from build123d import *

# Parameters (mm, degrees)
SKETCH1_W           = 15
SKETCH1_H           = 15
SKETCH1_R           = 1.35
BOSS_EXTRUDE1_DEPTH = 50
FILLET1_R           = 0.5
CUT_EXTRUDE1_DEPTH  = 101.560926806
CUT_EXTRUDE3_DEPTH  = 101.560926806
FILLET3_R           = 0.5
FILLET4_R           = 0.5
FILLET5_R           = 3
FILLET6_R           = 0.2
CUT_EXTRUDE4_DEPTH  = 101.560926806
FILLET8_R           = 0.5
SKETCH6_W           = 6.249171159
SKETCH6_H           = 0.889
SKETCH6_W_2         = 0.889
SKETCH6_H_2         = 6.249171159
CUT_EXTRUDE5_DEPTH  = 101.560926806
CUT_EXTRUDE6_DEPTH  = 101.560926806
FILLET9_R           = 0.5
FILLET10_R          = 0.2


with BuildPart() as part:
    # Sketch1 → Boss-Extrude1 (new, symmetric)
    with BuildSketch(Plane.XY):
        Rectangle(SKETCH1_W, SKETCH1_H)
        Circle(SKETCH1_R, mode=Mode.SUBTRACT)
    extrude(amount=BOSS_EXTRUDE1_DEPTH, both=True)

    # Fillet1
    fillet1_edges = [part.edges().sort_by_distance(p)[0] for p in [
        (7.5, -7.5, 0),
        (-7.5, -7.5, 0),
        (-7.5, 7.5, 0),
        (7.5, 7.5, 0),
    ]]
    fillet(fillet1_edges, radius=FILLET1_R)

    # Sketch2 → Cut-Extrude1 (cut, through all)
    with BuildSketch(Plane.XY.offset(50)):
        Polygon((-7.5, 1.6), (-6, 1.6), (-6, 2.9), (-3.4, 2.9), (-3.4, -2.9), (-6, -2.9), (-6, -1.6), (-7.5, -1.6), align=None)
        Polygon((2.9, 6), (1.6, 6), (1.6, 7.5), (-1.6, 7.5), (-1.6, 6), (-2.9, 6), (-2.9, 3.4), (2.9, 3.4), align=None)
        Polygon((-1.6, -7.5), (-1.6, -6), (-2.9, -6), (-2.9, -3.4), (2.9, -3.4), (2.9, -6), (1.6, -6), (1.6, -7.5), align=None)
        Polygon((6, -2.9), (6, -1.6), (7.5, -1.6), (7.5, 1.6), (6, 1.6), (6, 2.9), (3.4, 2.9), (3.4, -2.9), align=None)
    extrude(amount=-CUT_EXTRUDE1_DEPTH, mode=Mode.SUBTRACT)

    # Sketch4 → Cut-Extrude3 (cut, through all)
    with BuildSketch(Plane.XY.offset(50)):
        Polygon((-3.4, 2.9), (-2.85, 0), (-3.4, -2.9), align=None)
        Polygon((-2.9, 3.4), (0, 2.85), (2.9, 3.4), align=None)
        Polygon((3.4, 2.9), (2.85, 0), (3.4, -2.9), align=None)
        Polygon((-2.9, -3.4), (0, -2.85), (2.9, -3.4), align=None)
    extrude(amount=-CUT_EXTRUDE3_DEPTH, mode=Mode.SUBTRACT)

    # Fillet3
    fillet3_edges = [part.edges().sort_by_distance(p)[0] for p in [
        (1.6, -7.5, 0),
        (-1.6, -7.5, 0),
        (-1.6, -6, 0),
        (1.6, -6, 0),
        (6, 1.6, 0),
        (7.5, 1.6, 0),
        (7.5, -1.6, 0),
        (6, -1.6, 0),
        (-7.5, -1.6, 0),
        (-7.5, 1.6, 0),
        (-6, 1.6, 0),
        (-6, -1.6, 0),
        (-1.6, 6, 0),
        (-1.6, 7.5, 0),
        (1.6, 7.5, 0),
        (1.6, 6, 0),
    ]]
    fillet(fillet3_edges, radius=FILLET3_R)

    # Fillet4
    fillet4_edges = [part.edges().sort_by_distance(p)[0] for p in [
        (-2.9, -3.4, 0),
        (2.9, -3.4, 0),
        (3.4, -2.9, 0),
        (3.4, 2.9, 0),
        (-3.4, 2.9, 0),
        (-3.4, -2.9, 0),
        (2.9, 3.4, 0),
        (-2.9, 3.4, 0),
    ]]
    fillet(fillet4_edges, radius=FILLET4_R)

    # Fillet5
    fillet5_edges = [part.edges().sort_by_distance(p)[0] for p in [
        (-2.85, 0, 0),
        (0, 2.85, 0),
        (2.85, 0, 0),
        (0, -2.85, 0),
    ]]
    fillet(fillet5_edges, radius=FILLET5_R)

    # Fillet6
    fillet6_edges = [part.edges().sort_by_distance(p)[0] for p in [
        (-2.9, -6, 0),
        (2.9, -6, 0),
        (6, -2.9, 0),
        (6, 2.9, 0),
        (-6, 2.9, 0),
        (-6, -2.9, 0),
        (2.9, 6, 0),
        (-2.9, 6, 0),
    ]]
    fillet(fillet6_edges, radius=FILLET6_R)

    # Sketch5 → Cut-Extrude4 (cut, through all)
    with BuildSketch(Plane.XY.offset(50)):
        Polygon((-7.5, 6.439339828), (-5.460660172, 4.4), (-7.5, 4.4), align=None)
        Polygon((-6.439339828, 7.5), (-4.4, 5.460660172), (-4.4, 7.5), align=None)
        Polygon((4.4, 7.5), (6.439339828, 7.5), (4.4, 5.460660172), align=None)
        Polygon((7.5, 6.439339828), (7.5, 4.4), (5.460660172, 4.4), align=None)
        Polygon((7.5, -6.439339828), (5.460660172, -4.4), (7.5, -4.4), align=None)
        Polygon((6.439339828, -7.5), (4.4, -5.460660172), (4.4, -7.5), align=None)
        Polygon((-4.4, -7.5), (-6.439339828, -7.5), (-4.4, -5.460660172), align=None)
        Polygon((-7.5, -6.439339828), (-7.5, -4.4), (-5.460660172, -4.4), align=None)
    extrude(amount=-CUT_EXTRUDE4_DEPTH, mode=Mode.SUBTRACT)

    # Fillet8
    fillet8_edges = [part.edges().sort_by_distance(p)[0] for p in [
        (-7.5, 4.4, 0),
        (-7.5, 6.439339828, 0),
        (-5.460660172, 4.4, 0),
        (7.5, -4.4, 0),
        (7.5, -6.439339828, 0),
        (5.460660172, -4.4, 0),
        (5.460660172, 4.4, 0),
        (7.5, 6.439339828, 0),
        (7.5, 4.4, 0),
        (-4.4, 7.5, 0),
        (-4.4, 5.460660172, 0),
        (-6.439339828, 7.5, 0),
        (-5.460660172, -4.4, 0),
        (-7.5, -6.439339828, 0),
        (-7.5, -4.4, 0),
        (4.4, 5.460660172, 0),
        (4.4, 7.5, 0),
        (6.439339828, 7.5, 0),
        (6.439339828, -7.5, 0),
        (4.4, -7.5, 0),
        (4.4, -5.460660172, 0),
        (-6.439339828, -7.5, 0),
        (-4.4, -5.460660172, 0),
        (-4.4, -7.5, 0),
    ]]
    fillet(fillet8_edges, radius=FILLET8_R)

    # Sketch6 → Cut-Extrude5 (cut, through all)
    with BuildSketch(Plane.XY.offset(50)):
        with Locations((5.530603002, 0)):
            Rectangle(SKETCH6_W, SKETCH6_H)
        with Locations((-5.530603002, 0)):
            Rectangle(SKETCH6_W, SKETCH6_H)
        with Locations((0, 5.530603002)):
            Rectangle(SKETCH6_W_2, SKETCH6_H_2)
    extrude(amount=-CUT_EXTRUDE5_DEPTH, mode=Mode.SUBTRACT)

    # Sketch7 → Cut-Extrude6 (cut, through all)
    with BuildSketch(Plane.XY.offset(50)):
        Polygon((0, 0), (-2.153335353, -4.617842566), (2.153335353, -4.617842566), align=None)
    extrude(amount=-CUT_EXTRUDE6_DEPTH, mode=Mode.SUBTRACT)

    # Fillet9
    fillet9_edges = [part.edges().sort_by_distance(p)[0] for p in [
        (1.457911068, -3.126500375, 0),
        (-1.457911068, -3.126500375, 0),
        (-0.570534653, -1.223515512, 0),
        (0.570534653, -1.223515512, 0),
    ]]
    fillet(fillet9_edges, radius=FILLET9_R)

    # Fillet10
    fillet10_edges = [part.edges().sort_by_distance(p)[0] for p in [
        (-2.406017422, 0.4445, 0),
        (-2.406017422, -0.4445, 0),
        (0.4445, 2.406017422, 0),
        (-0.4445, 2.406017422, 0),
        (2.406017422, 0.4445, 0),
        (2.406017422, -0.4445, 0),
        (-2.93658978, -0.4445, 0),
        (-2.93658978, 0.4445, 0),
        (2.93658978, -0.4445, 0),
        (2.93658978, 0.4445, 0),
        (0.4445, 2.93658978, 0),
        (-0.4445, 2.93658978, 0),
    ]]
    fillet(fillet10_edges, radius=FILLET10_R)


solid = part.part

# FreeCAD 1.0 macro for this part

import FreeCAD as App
import Part
import Sketcher

V = App.Vector
Q = App.Units.Quantity


def edges_at(feature, points):
    """Names of the edges that pass closest to the given points."""
    edges = feature.Shape.Edges
    near = lambda p: min(range(len(edges)), key=lambda i: edges[i].distToShape(Part.Vertex(*p))[0])
    return sorted({f"Edge{near(p) + 1}" for p in points})

doc = App.newDocument("Part")
body = doc.addObject("PartDesign::Body", "Body")

# Sketch on XY plane
sketch1 = body.newObject("Sketcher::SketchObject", "Sketch")
sketch1.AttachmentSupport = (doc.getObject("XY_Plane"), [""])
sketch1.MapMode = "FlatFace"
sketch1.addGeometry([
    Part.LineSegment(V(-7.5, 7.5, 0), V(-7.5, -7.5, 0)),  # 0
    Part.LineSegment(V(-7.5, -7.5, 0), V(7.5, -7.5, 0)),  # 1
    Part.LineSegment(V(7.5, -7.5, 0), V(7.5, 7.5, 0)),  # 2
    Part.LineSegment(V(7.5, 7.5, 0), V(-7.5, 7.5, 0)),  # 3
    Part.Circle(V(0, 0, 0), V(0, 0, 1), 1.4),  # 4
], False)
sketch1.addConstraint([
    Sketcher.Constraint("Coincident", 0, 2, 1, 1),
    Sketcher.Constraint("Coincident", 1, 2, 2, 1),
    Sketcher.Constraint("Coincident", 2, 2, 3, 1),
    Sketcher.Constraint("Coincident", 3, 2, 0, 1),
    Sketcher.Constraint("Vertical", 0),
    Sketcher.Constraint("Horizontal", 1),
    Sketcher.Constraint("Vertical", 2),
    Sketcher.Constraint("Horizontal", 3),
    Sketcher.Constraint("Coincident", 4, 3, -1, 1),
    Sketcher.Constraint("Symmetric", 0, 2, 2, 2, -1, 1),
    Sketcher.Constraint("Equal", 3, 0),
    Sketcher.Constraint("Diameter", 4, Q("2.7 mm")),
    Sketcher.Constraint("DistanceX", 1, 1, 1, 2, Q("15 mm")),
])
pad1 = body.newObject("PartDesign::Pad", "Pad")
pad1.Profile = sketch1
pad1.Length = 100
pad1.Midplane = True
doc.recompute()

fillet = body.newObject("PartDesign::Fillet", "Fillet")
fillet.Base = (pad1, edges_at(pad1, [
    (7.5, -7.5, 0),
    (-7.5, -7.5, 0),
    (-7.5, 7.5, 0),
    (7.5, 7.5, 0),
]))
fillet.Radius = 0.5

# Sketch on XY plane
sketch2 = body.newObject("Sketcher::SketchObject", "Sketch001")
sketch2.AttachmentSupport = (doc.getObject("XY_Plane"), [""])
sketch2.MapMode = "FlatFace"
sketch2.AttachmentOffset = App.Placement(V(0, 0, 50), App.Rotation())
sketch2.addGeometry([
    Part.LineSegment(V(-6, 1.6, 0), V(-7.5, 1.6, 0)),  # 0
    Part.LineSegment(V(-7.5, 1.6, 0), V(-7.5, -1.6, 0)),  # 1
    Part.LineSegment(V(-7.5, -1.6, 0), V(-6, -1.6, 0)),  # 2
    Part.LineSegment(V(-6, -1.6, 0), V(-6, -2.9, 0)),  # 3
    Part.LineSegment(V(-6, -2.9, 0), V(-3.4, -2.9, 0)),  # 4
    Part.LineSegment(V(-3.4, -2.9, 0), V(-3.4, 2.9, 0)),  # 5
    Part.LineSegment(V(-3.4, 2.9, 0), V(-6, 2.9, 0)),  # 6
    Part.LineSegment(V(-6, 2.9, 0), V(-6, 1.6, 0)),  # 7
    Part.LineSegment(V(2.9, 6, 0), V(1.6, 6, 0)),  # 8
    Part.LineSegment(V(1.6, 6, 0), V(1.6, 7.5, 0)),  # 9
    Part.LineSegment(V(1.6, 7.5, 0), V(-1.6, 7.5, 0)),  # 10
    Part.LineSegment(V(-1.6, 7.5, 0), V(-1.6, 6, 0)),  # 11
    Part.LineSegment(V(-1.6, 6, 0), V(-2.9, 6, 0)),  # 12
    Part.LineSegment(V(-2.9, 6, 0), V(-2.9, 3.4, 0)),  # 13
    Part.LineSegment(V(-2.9, 3.4, 0), V(2.9, 3.4, 0)),  # 14
    Part.LineSegment(V(2.9, 3.4, 0), V(2.9, 6, 0)),  # 15
    Part.LineSegment(V(-1.6, -6, 0), V(-1.6, -7.5, 0)),  # 16
    Part.LineSegment(V(-1.6, -7.5, 0), V(1.6, -7.5, 0)),  # 17
    Part.LineSegment(V(1.6, -7.5, 0), V(1.6, -6, 0)),  # 18
    Part.LineSegment(V(1.6, -6, 0), V(2.9, -6, 0)),  # 19
    Part.LineSegment(V(2.9, -6, 0), V(2.9, -3.4, 0)),  # 20
    Part.LineSegment(V(2.9, -3.4, 0), V(-2.9, -3.4, 0)),  # 21
    Part.LineSegment(V(-2.9, -3.4, 0), V(-2.9, -6, 0)),  # 22
    Part.LineSegment(V(-2.9, -6, 0), V(-1.6, -6, 0)),  # 23
    Part.LineSegment(V(6, -2.9, 0), V(6, -1.6, 0)),  # 24
    Part.LineSegment(V(6, -1.6, 0), V(7.5, -1.6, 0)),  # 25
    Part.LineSegment(V(7.5, -1.6, 0), V(7.5, 1.6, 0)),  # 26
    Part.LineSegment(V(7.5, 1.6, 0), V(6, 1.6, 0)),  # 27
    Part.LineSegment(V(6, 1.6, 0), V(6, 2.9, 0)),  # 28
    Part.LineSegment(V(6, 2.9, 0), V(3.4, 2.9, 0)),  # 29
    Part.LineSegment(V(3.4, 2.9, 0), V(3.4, -2.9, 0)),  # 30
    Part.LineSegment(V(3.4, -2.9, 0), V(6, -2.9, 0)),  # 31
], False)
sketch2.addConstraint([
    Sketcher.Constraint("Coincident", 0, 2, 1, 1),
    Sketcher.Constraint("Coincident", 1, 2, 2, 1),
    Sketcher.Constraint("Coincident", 2, 2, 3, 1),
    Sketcher.Constraint("Coincident", 3, 2, 4, 1),
    Sketcher.Constraint("Coincident", 4, 2, 5, 1),
    Sketcher.Constraint("Coincident", 5, 2, 6, 1),
    Sketcher.Constraint("Coincident", 6, 2, 7, 1),
    Sketcher.Constraint("Coincident", 7, 2, 0, 1),
    Sketcher.Constraint("Coincident", 8, 2, 9, 1),
    Sketcher.Constraint("Coincident", 9, 2, 10, 1),
    Sketcher.Constraint("Coincident", 10, 2, 11, 1),
    Sketcher.Constraint("Coincident", 11, 2, 12, 1),
    Sketcher.Constraint("Coincident", 12, 2, 13, 1),
    Sketcher.Constraint("Coincident", 13, 2, 14, 1),
    Sketcher.Constraint("Coincident", 14, 2, 15, 1),
    Sketcher.Constraint("Coincident", 15, 2, 8, 1),
    Sketcher.Constraint("Coincident", 16, 2, 17, 1),
    Sketcher.Constraint("Coincident", 17, 2, 18, 1),
    Sketcher.Constraint("Coincident", 18, 2, 19, 1),
    Sketcher.Constraint("Coincident", 19, 2, 20, 1),
    Sketcher.Constraint("Coincident", 20, 2, 21, 1),
    Sketcher.Constraint("Coincident", 21, 2, 22, 1),
    Sketcher.Constraint("Coincident", 22, 2, 23, 1),
    Sketcher.Constraint("Coincident", 23, 2, 16, 1),
    Sketcher.Constraint("Coincident", 24, 2, 25, 1),
    Sketcher.Constraint("Coincident", 25, 2, 26, 1),
    Sketcher.Constraint("Coincident", 26, 2, 27, 1),
    Sketcher.Constraint("Coincident", 27, 2, 28, 1),
    Sketcher.Constraint("Coincident", 28, 2, 29, 1),
    Sketcher.Constraint("Coincident", 29, 2, 30, 1),
    Sketcher.Constraint("Coincident", 30, 2, 31, 1),
    Sketcher.Constraint("Coincident", 31, 2, 24, 1),
    Sketcher.Constraint("Horizontal", 0),
    Sketcher.Constraint("Vertical", 1),
    Sketcher.Constraint("Horizontal", 2),
    Sketcher.Constraint("Vertical", 3),
    Sketcher.Constraint("Horizontal", 4),
    Sketcher.Constraint("Vertical", 5),
    Sketcher.Constraint("Horizontal", 6),
    Sketcher.Constraint("Vertical", 7),
    Sketcher.Constraint("Horizontal", 8),
    Sketcher.Constraint("Vertical", 9),
    Sketcher.Constraint("Horizontal", 10),
    Sketcher.Constraint("Vertical", 11),
    Sketcher.Constraint("Horizontal", 12),
    Sketcher.Constraint("Vertical", 13),
    Sketcher.Constraint("Horizontal", 14),
    Sketcher.Constraint("Vertical", 15),
    Sketcher.Constraint("Vertical", 16),
    Sketcher.Constraint("Horizontal", 17),
    Sketcher.Constraint("Vertical", 18),
    Sketcher.Constraint("Horizontal", 19),
    Sketcher.Constraint("Vertical", 20),
    Sketcher.Constraint("Horizontal", 21),
    Sketcher.Constraint("Vertical", 22),
    Sketcher.Constraint("Horizontal", 23),
    Sketcher.Constraint("Vertical", 24),
    Sketcher.Constraint("Horizontal", 25),
    Sketcher.Constraint("Vertical", 26),
    Sketcher.Constraint("Horizontal", 27),
    Sketcher.Constraint("Vertical", 28),
    Sketcher.Constraint("Horizontal", 29),
    Sketcher.Constraint("Vertical", 30),
    Sketcher.Constraint("Horizontal", 31),
    Sketcher.Constraint("Symmetric", 9, 2, 16, 2, -1, 1),
    Sketcher.Constraint("Symmetric", 11, 2, 18, 2, -1, 1),
    Sketcher.Constraint("Symmetric", 13, 2, 20, 2, -1, 1),
    Sketcher.Constraint("Symmetric", 15, 2, 22, 2, -1, 1),
    Sketcher.Constraint("Symmetric", 7, 2, 24, 2, -1, 1),
    Sketcher.Constraint("Symmetric", 1, 2, 26, 2, -1, 1),
    Sketcher.Constraint("Symmetric", 3, 2, 28, 2, -1, 1),
    Sketcher.Constraint("Symmetric", 5, 2, 30, 2, -1, 1),
    Sketcher.Constraint("Symmetric", 8, 2, 11, 2, -2),
    Sketcher.Constraint("Symmetric", 2, 2, 24, 2, -2),
    Sketcher.Constraint("Horizontal", 6, 2, 28, 2),
    Sketcher.Constraint("Vertical", 15, 2, 19, 2),
    Sketcher.Constraint("Equal", 17, 1),
    Sketcher.Constraint("Equal", 23, 3),
    Sketcher.Constraint("Equal", 27, 9),
    Sketcher.Constraint("Equal", 31, 13),
    Sketcher.Constraint("DistanceX", 0, 2, 0, 1, Q("1.5 mm")),
    Sketcher.Constraint("DistanceX", 4, 1, 4, 2, Q("2.6 mm")),
    Sketcher.Constraint("DistanceX", 8, 2, 8, 1, Q("1.3 mm")),
    Sketcher.Constraint("DistanceX", 10, 2, 10, 1, Q("3.2 mm")),
    Sketcher.Constraint("DistanceX", 2, 2, -1, 1, Q("6 mm")),
    Sketcher.Constraint("DistanceY", -1, 1, 8, 2, Q("6 mm")),
])
pocket1 = body.newObject("PartDesign::Pocket", "Pocket")
pocket1.Profile = sketch2
pocket1.Type = "ThroughAll"

# Sketch on XY plane
sketch3 = body.newObject("Sketcher::SketchObject", "Sketch002")
sketch3.AttachmentSupport = (doc.getObject("XY_Plane"), [""])
sketch3.MapMode = "FlatFace"
sketch3.AttachmentOffset = App.Placement(V(0, 0, 50), App.Rotation())
sketch3.addGeometry([
    Part.LineSegment(V(-2.9, 0, 0), V(-3.4, 2.9, 0)),  # 0
    Part.LineSegment(V(-3.4, 2.9, 0), V(-3.4, -2.9, 0)),  # 1
    Part.LineSegment(V(-3.4, -2.9, 0), V(-2.9, 0, 0)),  # 2
    Part.LineSegment(V(-2.9, 3.4, 0), V(0, 2.9, 0)),  # 3
    Part.LineSegment(V(0, 2.9, 0), V(2.9, 3.4, 0)),  # 4
    Part.LineSegment(V(2.9, 3.4, 0), V(-2.9, 3.4, 0)),  # 5
    Part.LineSegment(V(3.4, 2.9, 0), V(2.9, 0, 0)),  # 6
    Part.LineSegment(V(2.9, 0, 0), V(3.4, -2.9, 0)),  # 7
    Part.LineSegment(V(3.4, -2.9, 0), V(3.4, 2.9, 0)),  # 8
    Part.LineSegment(V(0, -2.9, 0), V(-2.9, -3.4, 0)),  # 9
    Part.LineSegment(V(-2.9, -3.4, 0), V(2.9, -3.4, 0)),  # 10
    Part.LineSegment(V(2.9, -3.4, 0), V(0, -2.9, 0)),  # 11
], False)
sketch3.addConstraint([
    Sketcher.Constraint("Coincident", 0, 2, 1, 1),
    Sketcher.Constraint("Coincident", 1, 2, 2, 1),
    Sketcher.Constraint("Coincident", 2, 2, 0, 1),
    Sketcher.Constraint("Coincident", 3, 2, 4, 1),
    Sketcher.Constraint("Coincident", 4, 2, 5, 1),
    Sketcher.Constraint("Coincident", 5, 2, 3, 1),
    Sketcher.Constraint("Coincident", 6, 2, 7, 1),
    Sketcher.Constraint("Coincident", 7, 2, 8, 1),
    Sketcher.Constraint("Coincident", 8, 2, 6, 1),
    Sketcher.Constraint("Coincident", 9, 2, 10, 1),
    Sketcher.Constraint("Coincident", 10, 2, 11, 1),
    Sketcher.Constraint("Coincident", 11, 2, 9, 1),
    Sketcher.Constraint("Vertical", 1),
    Sketcher.Constraint("Horizontal", 5),
    Sketcher.Constraint("Vertical", 8),
    Sketcher.Constraint("Horizontal", 10),
    Sketcher.Constraint("Symmetric", 2, 2, 6, 2, -1, 1),
    Sketcher.Constraint("Symmetric", 0, 2, 7, 2, -1, 1),
    Sketcher.Constraint("Symmetric", 4, 2, 9, 2, -1, 1),
    Sketcher.Constraint("Symmetric", 3, 2, 11, 2, -1, 1),
    Sketcher.Constraint("PointOnObject", 2, 2, -1),
    Sketcher.Constraint("PointOnObject", 3, 2, -2),
    Sketcher.Constraint("Perpendicular", 2, 3),
    Sketcher.Constraint("Perpendicular", 0, 4),
    Sketcher.Constraint("Perpendicular", 3, 6),
    Sketcher.Constraint("Perpendicular", 6, 11),
    Sketcher.Constraint("Horizontal", 1, 2, 7, 2),
    Sketcher.Constraint("Equal", 10, 1),
    Sketcher.Constraint("DistanceX", 5, 2, 5, 1, Q("5.8 mm")),
    Sketcher.Constraint("DistanceX", 0, 2, -1, 1, Q("3.4 mm")),
    Sketcher.Constraint("DistanceY", -1, 1, 4, 2, Q("3.4 mm")),
    Sketcher.Constraint("DistanceX", 2, 2, 6, 2, Q("5.7 mm")),
])
pocket2 = body.newObject("PartDesign::Pocket", "Pocket001")
pocket2.Profile = sketch3
pocket2.Type = "ThroughAll"
doc.recompute()

fillet2 = body.newObject("PartDesign::Fillet", "Fillet001")
fillet2.Base = (pocket2, edges_at(pocket2, [
    (1.6, -7.5, 0),
    (-1.6, -7.5, 0),
    (-1.6, -6, 0),
    (1.6, -6, 0),
    (6, 1.6, 0),
    (7.5, 1.6, 0),
    (7.5, -1.6, 0),
    (6, -1.6, 0),
    (-7.5, -1.6, 0),
    (-7.5, 1.6, 0),
    (-6, 1.6, 0),
    (-6, -1.6, 0),
    (-1.6, 6, 0),
    (-1.6, 7.5, 0),
    (1.6, 7.5, 0),
    (1.6, 6, 0),
]))
fillet2.Radius = 0.5
doc.recompute()

fillet3 = body.newObject("PartDesign::Fillet", "Fillet002")
fillet3.Base = (fillet2, edges_at(fillet2, [
    (-2.9, -3.4, 0),
    (2.9, -3.4, 0),
    (3.4, -2.9, 0),
    (3.4, 2.9, 0),
    (-3.4, 2.9, 0),
    (-3.4, -2.9, 0),
    (2.9, 3.4, 0),
    (-2.9, 3.4, 0),
]))
fillet3.Radius = 0.5
doc.recompute()

fillet4 = body.newObject("PartDesign::Fillet", "Fillet003")
fillet4.Base = (fillet3, edges_at(fillet3, [
    (-2.85, 0, 0),
    (0, 2.85, 0),
    (2.85, 0, 0),
    (0, -2.85, 0),
]))
fillet4.Radius = 3
doc.recompute()

fillet5 = body.newObject("PartDesign::Fillet", "Fillet004")
fillet5.Base = (fillet4, edges_at(fillet4, [
    (-2.9, -6, 0),
    (2.9, -6, 0),
    (6, -2.9, 0),
    (6, 2.9, 0),
    (-6, 2.9, 0),
    (-6, -2.9, 0),
    (2.9, 6, 0),
    (-2.9, 6, 0),
]))
fillet5.Radius = 0.2

# Sketch on XY plane
sketch4 = body.newObject("Sketcher::SketchObject", "Sketch003")
sketch4.AttachmentSupport = (doc.getObject("XY_Plane"), [""])
sketch4.MapMode = "FlatFace"
sketch4.AttachmentOffset = App.Placement(V(0, 0, 50), App.Rotation())
sketch4.addGeometry([
    Part.LineSegment(V(-5.5, 4.4, 0), V(-7.5, 6.4, 0)),  # 0
    Part.LineSegment(V(-7.5, 6.4, 0), V(-7.5, 4.4, 0)),  # 1
    Part.LineSegment(V(-7.5, 4.4, 0), V(-5.5, 4.4, 0)),  # 2
    Part.LineSegment(V(-6.4, 7.5, 0), V(-4.4, 5.5, 0)),  # 3
    Part.LineSegment(V(-4.4, 5.5, 0), V(-4.4, 7.5, 0)),  # 4
    Part.LineSegment(V(-4.4, 7.5, 0), V(-6.4, 7.5, 0)),  # 5
    Part.LineSegment(V(6.4, 7.5, 0), V(4.4, 7.5, 0)),  # 6
    Part.LineSegment(V(4.4, 7.5, 0), V(4.4, 5.5, 0)),  # 7
    Part.LineSegment(V(4.4, 5.5, 0), V(6.4, 7.5, 0)),  # 8
    Part.LineSegment(V(7.5, 4.4, 0), V(7.5, 6.4, 0)),  # 9
    Part.LineSegment(V(7.5, 6.4, 0), V(5.5, 4.4, 0)),  # 10
    Part.LineSegment(V(5.5, 4.4, 0), V(7.5, 4.4, 0)),  # 11
    Part.LineSegment(V(5.5, -4.4, 0), V(7.5, -6.4, 0)),  # 12
    Part.LineSegment(V(7.5, -6.4, 0), V(7.5, -4.4, 0)),  # 13
    Part.LineSegment(V(7.5, -4.4, 0), V(5.5, -4.4, 0)),  # 14
    Part.LineSegment(V(6.4, -7.5, 0), V(4.4, -5.5, 0)),  # 15
    Part.LineSegment(V(4.4, -5.5, 0), V(4.4, -7.5, 0)),  # 16
    Part.LineSegment(V(4.4, -7.5, 0), V(6.4, -7.5, 0)),  # 17
    Part.LineSegment(V(-6.4, -7.5, 0), V(-4.4, -7.5, 0)),  # 18
    Part.LineSegment(V(-4.4, -7.5, 0), V(-4.4, -5.5, 0)),  # 19
    Part.LineSegment(V(-4.4, -5.5, 0), V(-6.4, -7.5, 0)),  # 20
    Part.LineSegment(V(-7.5, -4.4, 0), V(-7.5, -6.4, 0)),  # 21
    Part.LineSegment(V(-7.5, -6.4, 0), V(-5.5, -4.4, 0)),  # 22
    Part.LineSegment(V(-5.5, -4.4, 0), V(-7.5, -4.4, 0)),  # 23
], False)
sketch4.addConstraint([
    Sketcher.Constraint("Coincident", 0, 2, 1, 1),
    Sketcher.Constraint("Coincident", 1, 2, 2, 1),
    Sketcher.Constraint("Coincident", 2, 2, 0, 1),
    Sketcher.Constraint("Coincident", 3, 2, 4, 1),
    Sketcher.Constraint("Coincident", 4, 2, 5, 1),
    Sketcher.Constraint("Coincident", 5, 2, 3, 1),
    Sketcher.Constraint("Coincident", 6, 2, 7, 1),
    Sketcher.Constraint("Coincident", 7, 2, 8, 1),
    Sketcher.Constraint("Coincident", 8, 2, 6, 1),
    Sketcher.Constraint("Coincident", 9, 2, 10, 1),
    Sketcher.Constraint("Coincident", 10, 2, 11, 1),
    Sketcher.Constraint("Coincident", 11, 2, 9, 1),
    Sketcher.Constraint("Coincident", 12, 2, 13, 1),
    Sketcher.Constraint("Coincident", 13, 2, 14, 1),
    Sketcher.Constraint("Coincident", 14, 2, 12, 1),
    Sketcher.Constraint("Coincident", 15, 2, 16, 1),
    Sketcher.Constraint("Coincident", 16, 2, 17, 1),
    Sketcher.Constraint("Coincident", 17, 2, 15, 1),
    Sketcher.Constraint("Coincident", 18, 2, 19, 1),
    Sketcher.Constraint("Coincident", 19, 2, 20, 1),
    Sketcher.Constraint("Coincident", 20, 2, 18, 1),
    Sketcher.Constraint("Coincident", 21, 2, 22, 1),
    Sketcher.Constraint("Coincident", 22, 2, 23, 1),
    Sketcher.Constraint("Coincident", 23, 2, 21, 1),
    Sketcher.Constraint("Vertical", 1),
    Sketcher.Constraint("Horizontal", 2),
    Sketcher.Constraint("Vertical", 4),
    Sketcher.Constraint("Horizontal", 5),
    Sketcher.Constraint("Horizontal", 6),
    Sketcher.Constraint("Vertical", 7),
    Sketcher.Constraint("Vertical", 9),
    Sketcher.Constraint("Horizontal", 11),
    Sketcher.Constraint("Vertical", 13),
    Sketcher.Constraint("Horizontal", 14),
    Sketcher.Constraint("Vertical", 16),
    Sketcher.Constraint("Horizontal", 17),
    Sketcher.Constraint("Horizontal", 18),
    Sketcher.Constraint("Vertical", 19),
    Sketcher.Constraint("Vertical", 21),
    Sketcher.Constraint("Horizontal", 23),
    Sketcher.Constraint("Symmetric", 0, 2, 12, 2, -1, 1),
    Sketcher.Constraint("Symmetric", 2, 2, 14, 2, -1, 1),
    Sketcher.Constraint("Symmetric", 3, 2, 15, 2, -1, 1),
    Sketcher.Constraint("Symmetric", 5, 2, 17, 2, -1, 1),
    Sketcher.Constraint("Symmetric", 6, 2, 18, 2, -1, 1),
    Sketcher.Constraint("Symmetric", 9, 2, 21, 2, -1, 1),
    Sketcher.Constraint("Symmetric", 10, 2, 22, 2, -1, 1),
    Sketcher.Constraint("Symmetric", 4, 2, 6, 2, -2),
    Sketcher.Constraint("Symmetric", 0, 2, 9, 2, -2),
    Sketcher.Constraint("Symmetric", 2, 2, 10, 2, -2),
    Sketcher.Constraint("Parallel", 0, 3),
    Sketcher.Constraint("Perpendicular", 3, 8),
    Sketcher.Constraint("Parallel", 8, 10),
    Sketcher.Constraint("Perpendicular", 15, 20),
    Sketcher.Constraint("Horizontal", 3, 2, 7, 2),
    Sketcher.Constraint("Horizontal", 15, 2, 19, 2),
    Sketcher.Constraint("Equal", 2, 5),
    Sketcher.Constraint("DistanceX", 0, 2, -1, 1, Q("7.5 mm")),
    Sketcher.Constraint("DistanceY", -1, 1, 1, 2, Q("4.4 mm")),
    Sketcher.Constraint("DistanceX", 3, 2, -1, 1, Q("4.4 mm")),
    Sketcher.Constraint("DistanceY", -1, 1, 4, 2, Q("7.5 mm")),
    Sketcher.Constraint("DistanceX", 2, 1, 2, 2, Q("2.03934 mm")),
])
pocket3 = body.newObject("PartDesign::Pocket", "Pocket002")
pocket3.Profile = sketch4
pocket3.Type = "ThroughAll"
doc.recompute()

fillet6 = body.newObject("PartDesign::Fillet", "Fillet005")
fillet6.Base = (pocket3, edges_at(pocket3, [
    (-7.5, 4.4, 0),
    (-7.5, 6.439, 0),
    (-5.461, 4.4, 0),
    (7.5, -4.4, 0),
    (7.5, -6.439, 0),
    (5.461, -4.4, 0),
    (5.461, 4.4, 0),
    (7.5, 6.439, 0),
    (7.5, 4.4, 0),
    (-4.4, 7.5, 0),
    (-4.4, 5.461, 0),
    (-6.439, 7.5, 0),
    (-5.461, -4.4, 0),
    (-7.5, -6.439, 0),
    (-7.5, -4.4, 0),
    (4.4, 5.461, 0),
    (4.4, 7.5, 0),
    (6.439, 7.5, 0),
    (6.439, -7.5, 0),
    (4.4, -7.5, 0),
    (4.4, -5.461, 0),
    (-6.439, -7.5, 0),
    (-4.4, -5.461, 0),
    (-4.4, -7.5, 0),
]))
fillet6.Radius = 0.5

# Sketch on XY plane
sketch5 = body.newObject("Sketcher::SketchObject", "Sketch004")
sketch5.AttachmentSupport = (doc.getObject("XY_Plane"), [""])
sketch5.MapMode = "FlatFace"
sketch5.AttachmentOffset = App.Placement(V(0, 0, 50), App.Rotation())
sketch5.addGeometry([
    Part.LineSegment(V(2.4, 0.4, 0), V(2.4, -0.4, 0)),  # 0
    Part.LineSegment(V(2.4, -0.4, 0), V(8.7, -0.4, 0)),  # 1
    Part.LineSegment(V(8.7, -0.4, 0), V(8.7, 0.4, 0)),  # 2
    Part.LineSegment(V(8.7, 0.4, 0), V(2.4, 0.4, 0)),  # 3
    Part.LineSegment(V(-8.7, 0.4, 0), V(-8.7, -0.4, 0)),  # 4
    Part.LineSegment(V(-8.7, -0.4, 0), V(-2.4, -0.4, 0)),  # 5
    Part.LineSegment(V(-2.4, -0.4, 0), V(-2.4, 0.4, 0)),  # 6
    Part.LineSegment(V(-2.4, 0.4, 0), V(-8.7, 0.4, 0)),  # 7
    Part.LineSegment(V(-0.4, 8.7, 0), V(-0.4, 2.4, 0)),  # 8
    Part.LineSegment(V(-0.4, 2.4, 0), V(0.4, 2.4, 0)),  # 9
    Part.LineSegment(V(0.4, 2.4, 0), V(0.4, 8.7, 0)),  # 10
    Part.LineSegment(V(0.4, 8.7, 0), V(-0.4, 8.7, 0)),  # 11
], False)
sketch5.addConstraint([
    Sketcher.Constraint("Coincident", 0, 2, 1, 1),
    Sketcher.Constraint("Coincident", 1, 2, 2, 1),
    Sketcher.Constraint("Coincident", 2, 2, 3, 1),
    Sketcher.Constraint("Coincident", 3, 2, 0, 1),
    Sketcher.Constraint("Coincident", 4, 2, 5, 1),
    Sketcher.Constraint("Coincident", 5, 2, 6, 1),
    Sketcher.Constraint("Coincident", 6, 2, 7, 1),
    Sketcher.Constraint("Coincident", 7, 2, 4, 1),
    Sketcher.Constraint("Coincident", 8, 2, 9, 1),
    Sketcher.Constraint("Coincident", 9, 2, 10, 1),
    Sketcher.Constraint("Coincident", 10, 2, 11, 1),
    Sketcher.Constraint("Coincident", 11, 2, 8, 1),
    Sketcher.Constraint("Vertical", 0),
    Sketcher.Constraint("Horizontal", 1),
    Sketcher.Constraint("Vertical", 2),
    Sketcher.Constraint("Horizontal", 3),
    Sketcher.Constraint("Vertical", 4),
    Sketcher.Constraint("Horizontal", 5),
    Sketcher.Constraint("Vertical", 6),
    Sketcher.Constraint("Horizontal", 7),
    Sketcher.Constraint("Vertical", 8),
    Sketcher.Constraint("Horizontal", 9),
    Sketcher.Constraint("Vertical", 10),
    Sketcher.Constraint("Horizontal", 11),
    Sketcher.Constraint("Symmetric", 2, 2, 4, 2, -1, 1),
    Sketcher.Constraint("Symmetric", 0, 2, 6, 2, -1, 1),
    Sketcher.Constraint("Horizontal", 1, 2, 4, 2),
    Sketcher.Constraint("Equal", 11, 0),
    Sketcher.Constraint("Equal", 7, 8),
    Sketcher.Constraint("DistanceX", 9, 1, 9, 2, Q("0.889 mm")),
    Sketcher.Constraint("DistanceX", 1, 1, 1, 2, Q("6.249171 mm")),
    Sketcher.Constraint("DistanceX", 8, 2, -1, 1, Q("0.4445 mm")),
    Sketcher.Constraint("DistanceX", -1, 1, 1, 2, Q("8.655189 mm")),
    Sketcher.Constraint("DistanceY", -1, 1, 10, 2, Q("8.655189 mm")),
])
pocket4 = body.newObject("PartDesign::Pocket", "Pocket003")
pocket4.Profile = sketch5
pocket4.Type = "ThroughAll"

# Sketch on XY plane
sketch6 = body.newObject("Sketcher::SketchObject", "Sketch005")
sketch6.AttachmentSupport = (doc.getObject("XY_Plane"), [""])
sketch6.MapMode = "FlatFace"
sketch6.AttachmentOffset = App.Placement(V(0, 0, 50), App.Rotation())
sketch6.addGeometry([
    Part.LineSegment(V(0, 0, 0), V(-2.2, -4.6, 0)),
    Part.LineSegment(V(-2.2, -4.6, 0), V(2.2, -4.6, 0)),
    Part.LineSegment(V(2.2, -4.6, 0), V(0, 0, 0)),
], False)
sketch6.addConstraint([
    Sketcher.Constraint("Coincident", 0, 2, 1, 1),
    Sketcher.Constraint("Coincident", 1, 2, 2, 1),
    Sketcher.Constraint("Coincident", 2, 2, 0, 1),
    Sketcher.Constraint("Horizontal", 1),
    Sketcher.Constraint("Coincident", 2, 2, -1, 1),
    Sketcher.Constraint("Equal", 0, 2),
    Sketcher.Constraint("Angle", 0, Q("-115 deg")),
    Sketcher.Constraint("DistanceX", 1, 1, 1, 2, Q("4.306671 mm")),
])
pocket5 = body.newObject("PartDesign::Pocket", "Pocket004")
pocket5.Profile = sketch6
pocket5.Type = "ThroughAll"
doc.recompute()

fillet7 = body.newObject("PartDesign::Fillet", "Fillet006")
fillet7.Base = (pocket5, edges_at(pocket5, [
    (1.458, -3.127, 0),
    (-1.458, -3.127, 0),
    (-0.571, -1.224, 0),
    (0.571, -1.224, 0),
]))
fillet7.Radius = 0.5
doc.recompute()

fillet8 = body.newObject("PartDesign::Fillet", "Fillet007")
fillet8.Base = (fillet7, edges_at(fillet7, [
    (-2.406, 0.445, 0),
    (-2.406, -0.445, 0),
    (0.445, 2.406, 0),
    (-0.445, 2.406, 0),
    (2.406, 0.445, 0),
    (2.406, -0.445, 0),
    (-2.937, -0.445, 0),
    (-2.937, 0.445, 0),
    (2.937, -0.445, 0),
    (2.937, 0.445, 0),
    (0.445, 2.937, 0),
    (-0.445, 2.937, 0),
]))
fillet8.Radius = 0.2

doc.recompute()
